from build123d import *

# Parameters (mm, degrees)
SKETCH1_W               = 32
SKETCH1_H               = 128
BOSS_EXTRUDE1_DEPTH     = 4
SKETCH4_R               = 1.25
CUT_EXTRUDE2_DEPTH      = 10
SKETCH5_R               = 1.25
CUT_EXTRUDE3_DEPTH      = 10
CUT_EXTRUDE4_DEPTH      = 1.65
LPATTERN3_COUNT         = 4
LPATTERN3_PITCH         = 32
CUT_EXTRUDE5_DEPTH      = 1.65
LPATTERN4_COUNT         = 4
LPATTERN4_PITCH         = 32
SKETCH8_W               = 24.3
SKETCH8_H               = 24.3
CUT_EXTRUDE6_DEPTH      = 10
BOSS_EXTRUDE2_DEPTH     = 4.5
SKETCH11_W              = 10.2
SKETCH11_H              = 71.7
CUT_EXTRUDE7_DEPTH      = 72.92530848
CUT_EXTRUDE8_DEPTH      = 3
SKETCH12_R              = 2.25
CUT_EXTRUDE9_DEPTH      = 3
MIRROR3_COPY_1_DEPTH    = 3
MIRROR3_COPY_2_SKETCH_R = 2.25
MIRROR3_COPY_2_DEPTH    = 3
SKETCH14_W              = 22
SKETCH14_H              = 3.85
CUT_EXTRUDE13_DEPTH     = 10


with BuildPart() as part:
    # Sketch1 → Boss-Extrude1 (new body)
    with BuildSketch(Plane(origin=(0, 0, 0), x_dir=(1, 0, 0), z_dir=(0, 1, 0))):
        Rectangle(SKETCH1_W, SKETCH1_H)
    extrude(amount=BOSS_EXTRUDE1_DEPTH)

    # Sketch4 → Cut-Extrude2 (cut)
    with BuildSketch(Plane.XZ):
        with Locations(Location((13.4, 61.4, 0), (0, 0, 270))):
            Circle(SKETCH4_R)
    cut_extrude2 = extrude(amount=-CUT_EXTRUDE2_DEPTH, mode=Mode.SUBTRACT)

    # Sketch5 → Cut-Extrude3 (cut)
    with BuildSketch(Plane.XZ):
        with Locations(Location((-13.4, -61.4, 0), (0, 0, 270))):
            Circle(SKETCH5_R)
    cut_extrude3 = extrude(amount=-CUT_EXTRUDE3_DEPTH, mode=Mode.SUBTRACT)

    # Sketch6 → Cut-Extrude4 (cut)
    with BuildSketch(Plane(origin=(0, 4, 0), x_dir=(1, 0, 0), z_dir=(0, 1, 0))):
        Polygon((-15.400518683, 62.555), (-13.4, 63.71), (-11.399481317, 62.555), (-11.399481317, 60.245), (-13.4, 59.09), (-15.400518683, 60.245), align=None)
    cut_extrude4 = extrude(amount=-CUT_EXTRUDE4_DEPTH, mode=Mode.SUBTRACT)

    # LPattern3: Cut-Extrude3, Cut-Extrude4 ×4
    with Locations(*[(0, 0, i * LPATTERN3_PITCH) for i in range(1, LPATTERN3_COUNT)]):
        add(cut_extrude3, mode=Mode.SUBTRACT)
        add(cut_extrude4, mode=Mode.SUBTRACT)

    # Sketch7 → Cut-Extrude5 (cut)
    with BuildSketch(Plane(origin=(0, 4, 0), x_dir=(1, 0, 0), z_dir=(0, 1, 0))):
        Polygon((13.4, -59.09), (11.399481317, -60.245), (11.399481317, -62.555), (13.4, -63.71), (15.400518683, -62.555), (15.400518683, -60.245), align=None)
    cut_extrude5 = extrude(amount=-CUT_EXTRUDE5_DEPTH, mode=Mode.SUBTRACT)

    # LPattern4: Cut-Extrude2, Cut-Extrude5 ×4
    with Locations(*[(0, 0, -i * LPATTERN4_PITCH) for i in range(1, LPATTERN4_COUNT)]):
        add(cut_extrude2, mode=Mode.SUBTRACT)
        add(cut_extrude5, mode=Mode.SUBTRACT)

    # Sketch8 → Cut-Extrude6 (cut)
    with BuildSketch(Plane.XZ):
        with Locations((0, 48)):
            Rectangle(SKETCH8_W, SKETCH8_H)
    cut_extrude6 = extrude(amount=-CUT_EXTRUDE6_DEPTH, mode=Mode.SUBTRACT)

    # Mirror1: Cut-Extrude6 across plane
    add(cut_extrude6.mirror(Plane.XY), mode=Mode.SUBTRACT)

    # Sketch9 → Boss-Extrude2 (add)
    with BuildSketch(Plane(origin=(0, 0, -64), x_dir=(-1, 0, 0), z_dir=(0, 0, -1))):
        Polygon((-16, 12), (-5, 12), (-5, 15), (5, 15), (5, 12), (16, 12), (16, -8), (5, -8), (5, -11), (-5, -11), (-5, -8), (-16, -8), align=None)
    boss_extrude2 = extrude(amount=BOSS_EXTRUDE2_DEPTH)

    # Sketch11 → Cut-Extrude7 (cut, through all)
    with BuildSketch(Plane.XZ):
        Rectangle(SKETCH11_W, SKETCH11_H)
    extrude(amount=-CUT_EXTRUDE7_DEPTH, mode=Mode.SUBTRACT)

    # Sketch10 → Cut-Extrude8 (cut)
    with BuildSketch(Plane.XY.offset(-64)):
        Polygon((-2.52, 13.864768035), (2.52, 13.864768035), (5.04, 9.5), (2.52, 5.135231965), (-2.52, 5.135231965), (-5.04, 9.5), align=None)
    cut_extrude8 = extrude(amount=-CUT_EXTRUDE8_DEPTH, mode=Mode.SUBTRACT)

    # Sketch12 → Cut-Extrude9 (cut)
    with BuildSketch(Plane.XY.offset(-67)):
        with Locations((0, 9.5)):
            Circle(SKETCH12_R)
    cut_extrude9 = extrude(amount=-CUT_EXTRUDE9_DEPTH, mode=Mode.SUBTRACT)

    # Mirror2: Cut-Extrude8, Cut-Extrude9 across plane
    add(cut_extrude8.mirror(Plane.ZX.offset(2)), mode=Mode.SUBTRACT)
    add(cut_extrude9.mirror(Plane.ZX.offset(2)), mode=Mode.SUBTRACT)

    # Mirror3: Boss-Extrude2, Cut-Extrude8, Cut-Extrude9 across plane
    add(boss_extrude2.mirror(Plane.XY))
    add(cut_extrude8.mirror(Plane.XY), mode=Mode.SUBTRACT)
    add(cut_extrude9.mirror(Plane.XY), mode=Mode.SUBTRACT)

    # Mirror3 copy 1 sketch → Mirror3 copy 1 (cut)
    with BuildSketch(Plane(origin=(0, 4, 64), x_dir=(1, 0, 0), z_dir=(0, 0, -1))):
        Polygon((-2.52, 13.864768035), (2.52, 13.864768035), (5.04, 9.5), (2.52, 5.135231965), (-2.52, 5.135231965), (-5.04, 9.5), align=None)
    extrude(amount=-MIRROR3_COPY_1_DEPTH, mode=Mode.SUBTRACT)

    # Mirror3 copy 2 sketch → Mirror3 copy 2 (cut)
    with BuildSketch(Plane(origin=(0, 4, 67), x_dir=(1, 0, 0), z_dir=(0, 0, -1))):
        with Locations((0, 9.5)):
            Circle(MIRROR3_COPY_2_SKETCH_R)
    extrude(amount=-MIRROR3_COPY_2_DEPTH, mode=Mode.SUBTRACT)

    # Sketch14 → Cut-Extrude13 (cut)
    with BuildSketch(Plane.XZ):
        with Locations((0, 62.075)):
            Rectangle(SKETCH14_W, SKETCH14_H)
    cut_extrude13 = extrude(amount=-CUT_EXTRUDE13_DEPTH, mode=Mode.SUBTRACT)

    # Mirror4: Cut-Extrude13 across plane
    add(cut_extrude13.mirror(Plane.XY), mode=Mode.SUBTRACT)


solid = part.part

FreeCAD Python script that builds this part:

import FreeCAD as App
import Part
import Sketcher
from FreeCAD import Vector
Q = App.Units.Quantity

doc = App.newDocument("Part")
params = doc.addObject("Spreadsheet::Sheet", "Params")
for row, (alias, value) in enumerate([
    ("sketch1_width", "32 mm"),
    ("sketch1_height", "128 mm"),
    ("pad1_length", "4 mm"),
    ("sketch2_diameter", "2.5 mm"),
    ("pocket1_length", "10 mm"),
    ("sketch3_diameter", "2.5 mm"),
    ("pocket2_length", "10 mm"),
    ("sketch4_height", "2.31 mm"),
    ("sketch4_length", "2.31 mm"),
    ("pocket3_length", "1.65 mm"),
    ("linearpattern_pitch", "32 mm"),
    ("sketch5_height", "2.31 mm"),
    ("sketch5_length", "2.31 mm"),
    ("pocket4_length", "1.65 mm"),
    ("linearpattern2_pitch", "32 mm"),
    ("sketch6_width", "24.3 mm"),
    ("pocket5_length", "10 mm"),
    ("sketch7_width", "11 mm"),
    ("sketch7_width2", "10 mm"),
    ("sketch7_height", "20 mm"),
    ("sketch7_height2", "3 mm"),
    ("pad2_length", "4.5 mm"),
    ("sketch8_width", "10.2 mm"),
    ("sketch8_height", "71.7 mm"),
    ("sketch9_width", "5.04 mm"),
    ("sketch9_length", "5.04 mm"),
    ("pocket7_length", "3 mm"),
    ("sketch10_diameter", "4.5 mm"),
    ("pocket8_length", "3 mm"),
    ("sketch11_width", "5.04 mm"),
    ("sketch11_length", "5.04 mm"),
    ("pocket9_length", "3 mm"),
    ("sketch12_diameter", "4.5 mm"),
    ("pocket10_length", "3 mm"),
    ("sketch13_width", "22 mm"),
    ("sketch13_height", "3.85 mm"),
    ("pocket11_length", "10 mm"),
], start=1):
    params.set(f"A{row}", alias)
    params.set(f"B{row}", "=" + value)
    params.setAlias(f"B{row}", alias)

body = doc.addObject("PartDesign::Body", "Body")

# Sketch on XZ plane
sketch1 = body.newObject("Sketcher::SketchObject", "Sketch")
sketch1.AttachmentSupport = (doc.getObject("XZ_Plane"), [""])
sketch1.MapMode = "FlatFace"
sketch1.addGeometry([
    Part.LineSegment(Vector(-16, -64, 0), Vector(-16, 64, 0)),
    Part.LineSegment(Vector(-16, 64, 0), Vector(16, 64, 0)),
    Part.LineSegment(Vector(16, 64, 0), Vector(16, -64, 0)),
    Part.LineSegment(Vector(16, -64, 0), Vector(-16, -64, 0)),
], False)
sketch1.addConstraint([
    Sketcher.Constraint("Coincident", 0, 2, 1, 1),
    Sketcher.Constraint("Coincident", 1, 2, 2, 1),
    Sketcher.Constraint("Coincident", 2, 2, 3, 1),
    Sketcher.Constraint("Coincident", 3, 2, 0, 1),
    Sketcher.Constraint("Vertical", 0),
    Sketcher.Constraint("Horizontal", 1),
    Sketcher.Constraint("Vertical", 2),
    Sketcher.Constraint("Horizontal", 3),
    Sketcher.Constraint("Symmetric", 0, 2, 2, 2, -1, 1),
    Sketcher.Constraint("DistanceX", 1, 1, 1, 2, 32.0),
    Sketcher.Constraint("DistanceY", 0, 1, 0, 2, 128.0),
])
sketch1.setExpression("Constraints[9]", "Params.sketch1_width")
sketch1.setExpression("Constraints[10]", "Params.sketch1_height")
pad1 = body.newObject("PartDesign::Pad", "Pad")
pad1.Profile = sketch1
pad1.setExpression("Length", "Params.pad1_length")
pad1.Reversed = True

# Sketch on XZ plane
sketch2 = body.newObject("Sketcher::SketchObject", "Sketch001")
sketch2.AttachmentSupport = (doc.getObject("XZ_Plane"), [""])
sketch2.MapMode = "FlatFace"
sketch2.addGeometry(Part.Circle(Vector(13.4, 61.4, 0), Vector(0, 0, 1), 1.2), False)
sketch2.addConstraint([
    Sketcher.Constraint("Diameter", 0, 2.5),
    Sketcher.Constraint("DistanceX", -1, 1, 0, 3, 13.4),
    Sketcher.Constraint("DistanceY", -1, 1, 0, 3, 61.4),
])
sketch2.setExpression("Constraints[0]", "Params.sketch2_diameter")
pocket1 = body.newObject("PartDesign::Pocket", "Pocket")
pocket1.Profile = sketch2
pocket1.setExpression("Length", "Params.pocket1_length")

# Sketch on XZ plane
sketch3 = body.newObject("Sketcher::SketchObject", "Sketch002")
sketch3.AttachmentSupport = (doc.getObject("XZ_Plane"), [""])
sketch3.MapMode = "FlatFace"
sketch3.addGeometry(Part.Circle(Vector(-13.4, -61.4, 0), Vector(0, 0, 1), 1.2), False)
sketch3.addConstraint([
    Sketcher.Constraint("Diameter", 0, 2.5),
    Sketcher.Constraint("DistanceX", 0, 3, -1, 1, 13.4),
    Sketcher.Constraint("DistanceY", 0, 3, -1, 1, 61.4),
])
sketch3.setExpression("Constraints[0]", "Params.sketch3_diameter")
pocket2 = body.newObject("PartDesign::Pocket", "Pocket001")
pocket2.Profile = sketch3
pocket2.setExpression("Length", "Params.pocket2_length")

# Sketch on XZ plane
sketch4 = body.newObject("Sketcher::SketchObject", "Sketch003")
sketch4.AttachmentSupport = (doc.getObject("XZ_Plane"), [""])
sketch4.MapMode = "FlatFace"
sketch4.AttachmentOffset = App.Placement(Vector(0, 0, -4), App.Rotation())
sketch4.addGeometry([
    Part.LineSegment(Vector(-13.4, -63.7, 0), Vector(-15.4, -62.6, 0)),  # 0
    Part.LineSegment(Vector(-15.4, -62.6, 0), Vector(-15.4, -60.2, 0)),  # 1
    Part.LineSegment(Vector(-15.4, -60.2, 0), Vector(-13.4, -59.1, 0)),  # 2
    Part.LineSegment(Vector(-13.4, -59.1, 0), Vector(-11.4, -60.2, 0)),  # 3
    Part.LineSegment(Vector(-11.4, -60.2, 0), Vector(-11.4, -62.6, 0)),  # 4
    Part.LineSegment(Vector(-11.4, -62.6, 0), Vector(-13.4, -63.7, 0)),  # 5
], False)
sketch4.addConstraint([
    Sketcher.Constraint("Coincident", 0, 2, 1, 1),
    Sketcher.Constraint("Coincident", 1, 2, 2, 1),
    Sketcher.Constraint("Coincident", 2, 2, 3, 1),
    Sketcher.Constraint("Coincident", 3, 2, 4, 1),
    Sketcher.Constraint("Coincident", 4, 2, 5, 1),
    Sketcher.Constraint("Coincident", 5, 2, 0, 1),
    Sketcher.Constraint("Vertical", 1),
    Sketcher.Constraint("Vertical", 4),
    Sketcher.Constraint("Parallel", 0, 3),
    Sketcher.Constraint("Parallel", 2, 5),
    Sketcher.Constraint("Horizontal", 1, 2, 3, 2),
    Sketcher.Constraint("Horizontal", 0, 2, 4, 2),
    Sketcher.Constraint("Vertical", 2, 2, 5, 2),
    Sketcher.Constraint("Angle", 0, Q("150 deg")),
    Sketcher.Constraint("DistanceY", 1, 1, 1, 2, 2.31),
    Sketcher.Constraint("DistanceX", 2, 2, -1, 1, 13.4),
    Sketcher.Constraint("Distance", 0, 2.31),
    Sketcher.Constraint("DistanceY", 2, 2, -1, 1, 59.09),
])
sketch4.setExpression("Constraints[14]", "Params.sketch4_height")
sketch4.setExpression("Constraints[16]", "Params.sketch4_length")
pocket3 = body.newObject("PartDesign::Pocket", "Pocket002")
pocket3.Profile = sketch4
pocket3.setExpression("Length", "Params.pocket3_length")
pocket3.Reversed = True
doc.recompute()

linearpattern = body.newObject("PartDesign::LinearPattern", "LinearPattern")
linearpattern.Originals = [pocket2, pocket3]
linearpattern.Direction = (doc.getObject("Z_Axis"), [""])
linearpattern.Mode = "offset"
linearpattern.setExpression("Offset", "Params.linearpattern_pitch")
linearpattern.Occurrences = 4
body.Tip = linearpattern

# Sketch on XZ plane
sketch5 = body.newObject("Sketcher::SketchObject", "Sketch004")
sketch5.AttachmentSupport = (doc.getObject("XZ_Plane"), [""])
sketch5.MapMode = "FlatFace"
sketch5.AttachmentOffset = App.Placement(Vector(0, 0, -4), App.Rotation())
sketch5.addGeometry([
    Part.LineSegment(Vector(13.4, 59.1, 0), Vector(11.4, 60.2, 0)),  # 0
    Part.LineSegment(Vector(11.4, 60.2, 0), Vector(11.4, 62.6, 0)),  # 1
    Part.LineSegment(Vector(11.4, 62.6, 0), Vector(13.4, 63.7, 0)),  # 2
    Part.LineSegment(Vector(13.4, 63.7, 0), Vector(15.4, 62.6, 0)),  # 3
    Part.LineSegment(Vector(15.4, 62.6, 0), Vector(15.4, 60.2, 0)),  # 4
    Part.LineSegment(Vector(15.4, 60.2, 0), Vector(13.4, 59.1, 0)),  # 5
], False)
sketch5.addConstraint([
    Sketcher.Constraint("Coincident", 0, 2, 1, 1),
    Sketcher.Constraint("Coincident", 1, 2, 2, 1),
    Sketcher.Constraint("Coincident", 2, 2, 3, 1),
    Sketcher.Constraint("Coincident", 3, 2, 4, 1),
    Sketcher.Constraint("Coincident", 4, 2, 5, 1),
    Sketcher.Constraint("Coincident", 5, 2, 0, 1),
    Sketcher.Constraint("Vertical", 1),
    Sketcher.Constraint("Vertical", 4),
    Sketcher.Constraint("Parallel", 0, 3),
    Sketcher.Constraint("Parallel", 2, 5),
    Sketcher.Constraint("Horizontal", 1, 2, 3, 2),
    Sketcher.Constraint("Horizontal", 0, 2, 4, 2),
    Sketcher.Constraint("Vertical", 2, 2, 5, 2),
    Sketcher.Constraint("Angle", 0, Q("150 deg")),
    Sketcher.Constraint("DistanceY", 1, 1, 1, 2, 2.31),
    Sketcher.Constraint("DistanceX", -1, 1, 2, 2, 13.4),
    Sketcher.Constraint("Distance", 0, 2.31),
    Sketcher.Constraint("DistanceY", -1, 1, 2, 2, 63.71),
])
sketch5.setExpression("Constraints[14]", "Params.sketch5_height")
sketch5.setExpression("Constraints[16]", "Params.sketch5_length")
pocket4 = body.newObject("PartDesign::Pocket", "Pocket003")
pocket4.Profile = sketch5
pocket4.setExpression("Length", "Params.pocket4_length")
pocket4.Reversed = True
doc.recompute()

linearpattern2 = body.newObject("PartDesign::LinearPattern", "LinearPattern001")
linearpattern2.Originals = [pocket1, pocket4]
linearpattern2.Direction = (doc.getObject("Z_Axis"), [""])
linearpattern2.Mode = "offset"
linearpattern2.setExpression("Offset", "Params.linearpattern2_pitch")
linearpattern2.Occurrences = 4
linearpattern2.Reversed = True
body.Tip = linearpattern2

# Sketch on XZ plane
sketch6 = body.newObject("Sketcher::SketchObject", "Sketch005")
sketch6.AttachmentSupport = (doc.getObject("XZ_Plane"), [""])
sketch6.MapMode = "FlatFace"
sketch6.addGeometry([
    Part.LineSegment(Vector(-12, 60, 0), Vector(-12, 36, 0)),
    Part.LineSegment(Vector(-12, 36, 0), Vector(12, 36, 0)),
    Part.LineSegment(Vector(12, 36, 0), Vector(12, 60, 0)),
    Part.LineSegment(Vector(12, 60, 0), Vector(-12, 60, 0)),
], False)
sketch6.addConstraint([
    Sketcher.Constraint("Coincident", 0, 2, 1, 1),
    Sketcher.Constraint("Coincident", 1, 2, 2, 1),
    Sketcher.Constraint("Coincident", 2, 2, 3, 1),
    Sketcher.Constraint("Coincident", 3, 2, 0, 1),
    Sketcher.Constraint("Vertical", 0),
    Sketcher.Constraint("Horizontal", 1),
    Sketcher.Constraint("Vertical", 2),
    Sketcher.Constraint("Horizontal", 3),
    Sketcher.Constraint("Equal", 3, 0),
    Sketcher.Constraint("DistanceX", 1, 1, 1, 2, 24.3),
    Sketcher.Constraint("DistanceX", 0, 2, -1, 1, 12.15),
    Sketcher.Constraint("DistanceY", -1, 1, 0, 2, 35.85),
])
sketch6.setExpression("Constraints[9]", "Params.sketch6_width")
pocket5 = body.newObject("PartDesign::Pocket", "Pocket004")
pocket5.Profile = sketch6
pocket5.setExpression("Length", "Params.pocket5_length")
doc.recompute()

mirrored = body.newObject("PartDesign::Mirrored", "Mirrored")
mirrored.Originals = [pocket5]
mirrored.MirrorPlane = (doc.getObject("XY_Plane"), [""])
body.Tip = mirrored

# Sketch on XY plane
sketch7 = body.newObject("Sketcher::SketchObject", "Sketch006")
sketch7.AttachmentSupport = (doc.getObject("XY_Plane"), [""])
sketch7.MapMode = "FlatFace"
sketch7.AttachmentOffset = App.Placement(Vector(0, 0, -64), App.Rotation())
sketch7.addGeometry([
    Part.LineSegment(Vector(5, 12, 0), Vector(16, 12, 0)),  # 0
    Part.LineSegment(Vector(16, 12, 0), Vector(16, -8, 0)),  # 1
    Part.LineSegment(Vector(16, -8, 0), Vector(5, -8, 0)),  # 2
    Part.LineSegment(Vector(5, -8, 0), Vector(5, -11, 0)),  # 3
    Part.LineSegment(Vector(5, -11, 0), Vector(-5, -11, 0)),  # 4
    Part.LineSegment(Vector(-5, -11, 0), Vector(-5, -8, 0)),  # 5
    Part.LineSegment(Vector(-5, -8, 0), Vector(-16, -8, 0)),  # 6
    Part.LineSegment(Vector(-16, -8, 0), Vector(-16, 12, 0)),  # 7
    Part.LineSegment(Vector(-16, 12, 0), Vector(-5, 12, 0)),  # 8
    Part.LineSegment(Vector(-5, 12, 0), Vector(-5, 15, 0)),  # 9
    Part.LineSegment(Vector(-5, 15, 0), Vector(5, 15, 0)),  # 10
    Part.LineSegment(Vector(5, 15, 0), Vector(5, 12, 0)),  # 11
], False)
sketch7.addConstraint([
    Sketcher.Constraint("Coincident", 0, 2, 1, 1),
    Sketcher.Constraint("Coincident", 1, 2, 2, 1),
    Sketcher.Constraint("Coincident", 2, 2, 3, 1),
    Sketcher.Constraint("Coincident", 3, 2, 4, 1),
    Sketcher.Constraint("Coincident", 4, 2, 5, 1),
    Sketcher.Constraint("Coincident", 5, 2, 6, 1),
    Sketcher.Constraint("Coincident", 6, 2, 7, 1),
    Sketcher.Constraint("Coincident", 7, 2, 8, 1),
    Sketcher.Constraint("Coincident", 8, 2, 9, 1),
    Sketcher.Constraint("Coincident", 9, 2, 10, 1),
    Sketcher.Constraint("Coincident", 10, 2, 11, 1),
    Sketcher.Constraint("Coincident", 11, 2, 0, 1),
    Sketcher.Constraint("Horizontal", 0),
    Sketcher.Constraint("Vertical", 1),
    Sketcher.Constraint("Horizontal", 2),
    Sketcher.Constraint("Vertical", 3),
    Sketcher.Constraint("Horizontal", 4),
    Sketcher.Constraint("Vertical", 5),
    Sketcher.Constraint("Horizontal", 6),
    Sketcher.Constraint("Vertical", 7),
    Sketcher.Constraint("Horizontal", 8),
    Sketcher.Constraint("Vertical", 9),
    Sketcher.Constraint("Horizontal", 10),
    Sketcher.Constraint("Vertical", 11),
    Sketcher.Constraint("Symmetric", 2, 2, 5, 2, -2),
    Sketcher.Constraint("Symmetric", 0, 2, 7, 2, -2),
    Sketcher.Constraint("Vertical", 5, 2, 8, 2),
    Sketcher.Constraint("Vertical", 3, 2, 10, 2),
    Sketcher.Constraint("Equal", 5, 9),
    Sketcher.Constraint("DistanceX", 0, 1, 0, 2, 11.0),
    Sketcher.Constraint("DistanceX", 4, 2, 4, 1, 10.0),
    Sketcher.Constraint("DistanceY", 1, 2, 1, 1, 20.0),
    Sketcher.Constraint("DistanceY", 3, 2, 3, 1, 3.0),
    Sketcher.Constraint("DistanceY", -1, 1, 0, 2, 12.0),
])
sketch7.setExpression("Constraints[29]", "Params.sketch7_width")
sketch7.setExpression("Constraints[30]", "Params.sketch7_width2")
sketch7.setExpression("Constraints[31]", "Params.sketch7_height")
sketch7.setExpression("Constraints[32]", "Params.sketch7_height2")
pad2 = body.newObject("PartDesign::Pad", "Pad001")
pad2.Profile = sketch7
pad2.setExpression("Length", "Params.pad2_length")
pad2.Reversed = True

# Sketch on XZ plane
sketch8 = body.newObject("Sketcher::SketchObject", "Sketch007")
sketch8.AttachmentSupport = (doc.getObject("XZ_Plane"), [""])
sketch8.MapMode = "FlatFace"
sketch8.addGeometry([
    Part.LineSegment(Vector(-5, 36, 0), Vector(-5, -36, 0)),
    Part.LineSegment(Vector(-5, -36, 0), Vector(5, -36, 0)),
    Part.LineSegment(Vector(5, -36, 0), Vector(5, 36, 0)),
    Part.LineSegment(Vector(5, 36, 0), Vector(-5, 36, 0)),
], False)
sketch8.addConstraint([
    Sketcher.Constraint("Coincident", 0, 2, 1, 1),
    Sketcher.Constraint("Coincident", 1, 2, 2, 1),
    Sketcher.Constraint("Coincident", 2, 2, 3, 1),
    Sketcher.Constraint("Coincident", 3, 2, 0, 1),
    Sketcher.Constraint("Vertical", 0),
    Sketcher.Constraint("Horizontal", 1),
    Sketcher.Constraint("Vertical", 2),
    Sketcher.Constraint("Horizontal", 3),
    Sketcher.Constraint("Symmetric", 0, 2, 2, 2, -1, 1),
    Sketcher.Constraint("DistanceX", 1, 1, 1, 2, 10.2),
    Sketcher.Constraint("DistanceY", 0, 2, 0, 1, 71.7),
])
sketch8.setExpression("Constraints[9]", "Params.sketch8_width")
sketch8.setExpression("Constraints[10]", "Params.sketch8_height")
pocket6 = body.newObject("PartDesign::Pocket", "Pocket005")
pocket6.Profile = sketch8
pocket6.Type = "ThroughAll"

# Sketch on XY plane
sketch9 = body.newObject("Sketcher::SketchObject", "Sketch008")
sketch9.AttachmentSupport = (doc.getObject("XY_Plane"), [""])
sketch9.MapMode = "FlatFace"
sketch9.AttachmentOffset = App.Placement(Vector(0, 0, -64), App.Rotation())
sketch9.addGeometry([
    Part.LineSegment(Vector(3, 14, 0), Vector(-3, 14, 0)),  # 0
    Part.LineSegment(Vector(-3, 14, 0), Vector(-5, 10, 0)),  # 1
    Part.LineSegment(Vector(-5, 10, 0), Vector(-3, 5, 0)),  # 2
    Part.LineSegment(Vector(-3, 5, 0), Vector(3, 5, 0)),  # 3
    Part.LineSegment(Vector(3, 5, 0), Vector(5, 10, 0)),  # 4
    Part.LineSegment(Vector(5, 10, 0), Vector(3, 14, 0)),  # 5
], False)
sketch9.addConstraint([
    Sketcher.Constraint("Coincident", 0, 2, 1, 1),
    Sketcher.Constraint("Coincident", 1, 2, 2, 1),
    Sketcher.Constraint("Coincident", 2, 2, 3, 1),
    Sketcher.Constraint("Coincident", 3, 2, 4, 1),
    Sketcher.Constraint("Coincident", 4, 2, 5, 1),
    Sketcher.Constraint("Coincident", 5, 2, 0, 1),
    Sketcher.Constraint("Horizontal", 0),
    Sketcher.Constraint("Horizontal", 3),
    Sketcher.Constraint("Symmetric", 1, 2, 4, 2, -2),
    Sketcher.Constraint("Parallel", 1, 4),
    Sketcher.Constraint("Parallel", 2, 5),
    Sketcher.Constraint("Vertical", 0, 2, 2, 2),
    Sketcher.Constraint("Vertical", 3, 2, 5, 2),
    Sketcher.Constraint("Angle", 1, Q("-120 deg")),
    Sketcher.Constraint("DistanceX", 0, 2, 0, 1, 5.04),
    Sketcher.Constraint("DistanceY", -1, 1, 1, 2, 9.5),
    Sketcher.Constraint("Distance", 1, 5.04),
])
sketch9.setExpression("Constraints[14]", "Params.sketch9_width")
sketch9.setExpression("Constraints[16]", "Params.sketch9_length")
pocket7 = body.newObject("PartDesign::Pocket", "Pocket006")
pocket7.Profile = sketch9
pocket7.setExpression("Length", "Params.pocket7_length")

# Sketch on XY plane
sketch10 = body.newObject("Sketcher::SketchObject", "Sketch009")
sketch10.AttachmentSupport = (doc.getObject("XY_Plane"), [""])
sketch10.MapMode = "FlatFace"
sketch10.AttachmentOffset = App.Placement(Vector(0, 0, -67), App.Rotation())
sketch10.addGeometry(Part.Circle(Vector(0, 9.5, 0), Vector(0, 0, 1), 2.2), False)
sketch10.addConstraint([
    Sketcher.Constraint("PointOnObject", 0, 3, -2),
    Sketcher.Constraint("Diameter", 0, 4.5),
    Sketcher.Constraint("DistanceY", -1, 1, 0, 3, 9.5),
])
sketch10.setExpression("Constraints[1]", "Params.sketch10_diameter")
pocket8 = body.newObject("PartDesign::Pocket", "Pocket007")
pocket8.Profile = sketch10
pocket8.setExpression("Length", "Params.pocket8_length")
doc.recompute()

datumplane = body.newObject("PartDesign::Plane", "DatumPlane")
datumplane.AttachmentSupport = (doc.getObject("XZ_Plane"), [""])
datumplane.MapMode = "FlatFace"
datumplane.AttachmentOffset = App.Placement(Vector(0, 0, -2), App.Rotation())
mirrored2 = body.newObject("PartDesign::Mirrored", "Mirrored001")
mirrored2.Originals = [pocket7, pocket8]
mirrored2.MirrorPlane = (datumplane, [""])
body.Tip = mirrored2
doc.recompute()

mirrored3 = body.newObject("PartDesign::Mirrored", "Mirrored002")
mirrored3.Originals = [pad2, pocket7, pocket8]
mirrored3.MirrorPlane = (doc.getObject("XY_Plane"), [""])
body.Tip = mirrored3

# Sketch on XY plane
sketch11 = body.newObject("Sketcher::SketchObject", "Sketch010")
sketch11.AttachmentSupport = (doc.getObject("XY_Plane"), [""])
sketch11.MapMode = "FlatFace"
sketch11.AttachmentOffset = App.Placement(Vector(0, 0, 64), App.Rotation())
sketch11.addGeometry([
    Part.LineSegment(Vector(3, -10, 0), Vector(-3, -10, 0)),  # 0
    Part.LineSegment(Vector(-3, -10, 0), Vector(-5, -6, 0)),  # 1
    Part.LineSegment(Vector(-5, -6, 0), Vector(-3, -1, 0)),  # 2
    Part.LineSegment(Vector(-3, -1, 0), Vector(3, -1, 0)),  # 3
    Part.LineSegment(Vector(3, -1, 0), Vector(5, -6, 0)),  # 4
    Part.LineSegment(Vector(5, -6, 0), Vector(3, -10, 0)),  # 5
], False)
sketch11.addConstraint([
    Sketcher.Constraint("Coincident", 0, 2, 1, 1),
    Sketcher.Constraint("Coincident", 1, 2, 2, 1),
    Sketcher.Constraint("Coincident", 2, 2, 3, 1),
    Sketcher.Constraint("Coincident", 3, 2, 4, 1),
    Sketcher.Constraint("Coincident", 4, 2, 5, 1),
    Sketcher.Constraint("Coincident", 5, 2, 0, 1),
    Sketcher.Constraint("Horizontal", 0),
    Sketcher.Constraint("Horizontal", 3),
    Sketcher.Constraint("Symmetric", 1, 2, 4, 2, -2),
    Sketcher.Constraint("Parallel", 1, 4),
    Sketcher.Constraint("Parallel", 2, 5),
    Sketcher.Constraint("Vertical", 0, 2, 2, 2),
    Sketcher.Constraint("Vertical", 3, 2, 5, 2),
    Sketcher.Constraint("Angle", 1, Q("120 deg")),
    Sketcher.Constraint("DistanceX", 0, 2, 0, 1, 5.04),
    Sketcher.Constraint("DistanceY", 1, 2, -1, 1, 5.5),
    Sketcher.Constraint("Distance", 1, 5.04),
])
sketch11.setExpression("Constraints[14]", "Params.sketch11_width")
sketch11.setExpression("Constraints[16]", "Params.sketch11_length")
pocket9 = body.newObject("PartDesign::Pocket", "Pocket008")
pocket9.Profile = sketch11
pocket9.setExpression("Length", "Params.pocket9_length")
pocket9.Reversed = True

# Sketch on XY plane
sketch12 = body.newObject("Sketcher::SketchObject", "Sketch011")
sketch12.AttachmentSupport = (doc.getObject("XY_Plane"), [""])
sketch12.MapMode = "FlatFace"
sketch12.AttachmentOffset = App.Placement(Vector(0, 0, 67), App.Rotation())
sketch12.addGeometry(Part.Circle(Vector(0, -5.5, 0), Vector(0, 0, 1), 2.2), False)
sketch12.addConstraint([
    Sketcher.Constraint("PointOnObject", 0, 3, -2),
    Sketcher.Constraint("Diameter", 0, 4.5),
    Sketcher.Constraint("DistanceY", 0, 3, -1, 1, 5.5),
])
sketch12.setExpression("Constraints[1]", "Params.sketch12_diameter")
pocket10 = body.newObject("PartDesign::Pocket", "Pocket009")
pocket10.Profile = sketch12
pocket10.setExpression("Length", "Params.pocket10_length")
pocket10.Reversed = True

# Sketch on XZ plane
sketch13 = body.newObject("Sketcher::SketchObject", "Sketch012")
sketch13.AttachmentSupport = (doc.getObject("XZ_Plane"), [""])
sketch13.MapMode = "FlatFace"
sketch13.addGeometry([
    Part.LineSegment(Vector(-11, 64, 0), Vector(-11, 60.1, 0)),
    Part.LineSegment(Vector(-11, 60.1, 0), Vector(11, 60.1, 0)),
    Part.LineSegment(Vector(11, 60.1, 0), Vector(11, 64, 0)),
    Part.LineSegment(Vector(11, 64, 0), Vector(-11, 64, 0)),
], False)
sketch13.addConstraint([
    Sketcher.Constraint("Coincident", 0, 2, 1, 1),
    Sketcher.Constraint("Coincident", 1, 2, 2, 1),
    Sketcher.Constraint("Coincident", 2, 2, 3, 1),
    Sketcher.Constraint("Coincident", 3, 2, 0, 1),
    Sketcher.Constraint("Vertical", 0),
    Sketcher.Constraint("Horizontal", 1),
    Sketcher.Constraint("Vertical", 2),
    Sketcher.Constraint("Horizontal", 3),
    Sketcher.Constraint("DistanceX", 1, 1, 1, 2, 22.0),
    Sketcher.Constraint("DistanceX", 0, 2, -1, 1, 11.0),
    Sketcher.Constraint("DistanceY", -1, 1, 2, 2, 64.0),
    Sketcher.Constraint("DistanceY", 0, 2, 0, 1, 3.85),
])
sketch13.setExpression("Constraints[8]", "Params.sketch13_width")
sketch13.setExpression("Constraints[11]", "Params.sketch13_height")
pocket11 = body.newObject("PartDesign::Pocket", "Pocket010")
pocket11.Profile = sketch13
pocket11.setExpression("Length", "Params.pocket11_length")
doc.recompute()

mirrored4 = body.newObject("PartDesign::Mirrored", "Mirrored003")
mirrored4.Originals = [pocket11]
mirrored4.MirrorPlane = (doc.getObject("XY_Plane"), [""])
body.Tip = mirrored4

doc.recompute()
